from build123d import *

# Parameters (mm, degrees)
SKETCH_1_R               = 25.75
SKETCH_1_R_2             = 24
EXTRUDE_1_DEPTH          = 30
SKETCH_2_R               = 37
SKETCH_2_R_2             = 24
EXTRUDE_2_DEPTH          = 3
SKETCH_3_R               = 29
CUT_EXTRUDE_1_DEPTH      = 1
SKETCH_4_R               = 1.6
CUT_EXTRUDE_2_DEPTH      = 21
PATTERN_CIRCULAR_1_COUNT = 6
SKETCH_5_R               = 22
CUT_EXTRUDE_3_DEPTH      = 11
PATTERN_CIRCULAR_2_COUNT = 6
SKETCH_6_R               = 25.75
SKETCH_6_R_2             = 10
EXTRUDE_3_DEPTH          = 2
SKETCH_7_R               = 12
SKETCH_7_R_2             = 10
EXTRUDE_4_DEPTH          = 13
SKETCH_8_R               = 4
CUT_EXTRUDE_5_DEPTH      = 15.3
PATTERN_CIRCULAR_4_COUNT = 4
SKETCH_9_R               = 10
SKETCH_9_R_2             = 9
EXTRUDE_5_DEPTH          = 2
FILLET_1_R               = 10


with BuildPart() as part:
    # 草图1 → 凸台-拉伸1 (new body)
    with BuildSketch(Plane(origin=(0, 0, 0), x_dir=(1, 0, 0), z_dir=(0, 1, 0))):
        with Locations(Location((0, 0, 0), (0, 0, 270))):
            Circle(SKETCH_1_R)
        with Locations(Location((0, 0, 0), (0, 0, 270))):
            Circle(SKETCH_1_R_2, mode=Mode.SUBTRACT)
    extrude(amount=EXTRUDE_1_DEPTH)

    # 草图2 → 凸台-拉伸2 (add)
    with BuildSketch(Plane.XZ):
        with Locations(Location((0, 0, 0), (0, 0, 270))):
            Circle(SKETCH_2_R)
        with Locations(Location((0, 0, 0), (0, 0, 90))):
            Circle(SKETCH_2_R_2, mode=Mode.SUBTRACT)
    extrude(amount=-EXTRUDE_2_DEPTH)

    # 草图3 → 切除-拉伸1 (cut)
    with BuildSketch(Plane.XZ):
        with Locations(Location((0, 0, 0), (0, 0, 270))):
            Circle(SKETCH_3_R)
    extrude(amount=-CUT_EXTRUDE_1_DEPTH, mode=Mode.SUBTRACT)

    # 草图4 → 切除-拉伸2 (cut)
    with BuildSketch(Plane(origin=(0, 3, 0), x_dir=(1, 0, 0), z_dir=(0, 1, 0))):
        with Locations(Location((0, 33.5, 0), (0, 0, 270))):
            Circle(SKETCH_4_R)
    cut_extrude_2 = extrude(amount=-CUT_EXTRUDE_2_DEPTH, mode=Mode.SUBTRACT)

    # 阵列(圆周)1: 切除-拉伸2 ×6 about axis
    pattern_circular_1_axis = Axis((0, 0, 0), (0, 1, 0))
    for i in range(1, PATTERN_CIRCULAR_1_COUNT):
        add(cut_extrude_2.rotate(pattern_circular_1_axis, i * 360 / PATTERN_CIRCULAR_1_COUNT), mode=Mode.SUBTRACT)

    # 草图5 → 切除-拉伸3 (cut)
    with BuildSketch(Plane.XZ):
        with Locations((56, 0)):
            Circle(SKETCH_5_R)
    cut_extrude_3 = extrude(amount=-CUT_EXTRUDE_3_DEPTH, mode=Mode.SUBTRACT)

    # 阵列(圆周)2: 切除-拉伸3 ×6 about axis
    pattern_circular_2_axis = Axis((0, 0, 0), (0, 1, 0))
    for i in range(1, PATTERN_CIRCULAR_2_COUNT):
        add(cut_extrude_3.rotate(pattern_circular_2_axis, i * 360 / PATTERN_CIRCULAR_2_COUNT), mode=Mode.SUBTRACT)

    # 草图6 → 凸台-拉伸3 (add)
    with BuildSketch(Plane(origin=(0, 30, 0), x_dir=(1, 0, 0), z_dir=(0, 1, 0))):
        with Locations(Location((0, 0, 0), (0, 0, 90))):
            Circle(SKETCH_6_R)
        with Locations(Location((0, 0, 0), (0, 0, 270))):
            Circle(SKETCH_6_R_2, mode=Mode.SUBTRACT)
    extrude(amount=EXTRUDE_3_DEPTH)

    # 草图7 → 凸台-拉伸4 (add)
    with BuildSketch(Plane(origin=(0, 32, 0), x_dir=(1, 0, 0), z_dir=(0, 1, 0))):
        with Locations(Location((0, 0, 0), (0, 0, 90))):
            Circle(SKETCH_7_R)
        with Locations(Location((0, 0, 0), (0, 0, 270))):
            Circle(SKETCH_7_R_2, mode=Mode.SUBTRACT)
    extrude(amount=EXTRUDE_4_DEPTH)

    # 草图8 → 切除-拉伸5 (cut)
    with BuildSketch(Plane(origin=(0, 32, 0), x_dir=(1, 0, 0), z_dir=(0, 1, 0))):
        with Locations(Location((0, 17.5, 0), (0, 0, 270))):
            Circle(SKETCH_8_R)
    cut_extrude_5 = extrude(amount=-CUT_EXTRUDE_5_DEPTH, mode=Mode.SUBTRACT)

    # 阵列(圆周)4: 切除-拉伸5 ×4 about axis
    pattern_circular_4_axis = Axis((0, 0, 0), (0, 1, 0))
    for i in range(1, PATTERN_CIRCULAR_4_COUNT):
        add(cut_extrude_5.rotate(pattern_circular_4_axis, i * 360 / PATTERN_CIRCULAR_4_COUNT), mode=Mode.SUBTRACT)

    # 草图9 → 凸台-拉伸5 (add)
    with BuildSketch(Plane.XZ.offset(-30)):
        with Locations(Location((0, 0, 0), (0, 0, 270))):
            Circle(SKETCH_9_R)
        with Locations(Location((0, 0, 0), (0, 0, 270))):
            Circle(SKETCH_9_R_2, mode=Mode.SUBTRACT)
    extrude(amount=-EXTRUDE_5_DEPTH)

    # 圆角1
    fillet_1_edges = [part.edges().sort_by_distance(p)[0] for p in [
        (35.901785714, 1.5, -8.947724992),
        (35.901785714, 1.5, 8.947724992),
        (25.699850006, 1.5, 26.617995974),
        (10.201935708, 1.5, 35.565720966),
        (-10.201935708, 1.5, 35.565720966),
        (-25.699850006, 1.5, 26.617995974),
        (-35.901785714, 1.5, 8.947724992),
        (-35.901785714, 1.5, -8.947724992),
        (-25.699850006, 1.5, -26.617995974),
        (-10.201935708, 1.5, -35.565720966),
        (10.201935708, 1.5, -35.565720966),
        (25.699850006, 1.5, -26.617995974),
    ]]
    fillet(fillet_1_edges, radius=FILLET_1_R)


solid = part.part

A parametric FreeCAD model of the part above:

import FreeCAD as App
import Part
import Sketcher
from FreeCAD import Vector


def edges_at(feature, points):
    """Names of the edges that pass closest to the given points."""
    edges = feature.Shape.Edges
    near = lambda p: min(range(len(edges)), key=lambda i: edges[i].distToShape(Part.Vertex(*p))[0])
    return sorted({f"Edge{near(p) + 1}" for p in points})

doc = App.newDocument("Part")
body = doc.addObject("PartDesign::Body", "Body")

# Sketch on XZ plane
sketch1 = body.newObject("Sketcher::SketchObject", "Sketch")
sketch1.AttachmentSupport = (doc.getObject("XZ_Plane"), [""])
sketch1.MapMode = "FlatFace"
sketch1.addGeometry(Part.Circle(Vector(0, 0, 0), Vector(0, 0, 1), 26), False)
sketch1.addGeometry(Part.Circle(Vector(0, 0, 0), Vector(0, 0, 1), 24), False)
sketch1.addConstraint(Sketcher.Constraint("Coincident", 0, 3, -1, 1))
sketch1.addConstraint(Sketcher.Constraint("Coincident", 1, 3, -1, 1))
sketch1.addConstraint(Sketcher.Constraint("Diameter", 1, 48.0))
sketch1.addConstraint(Sketcher.Constraint("Diameter", 0, 51.5))
pad1 = body.newObject("PartDesign::Pad", "Pad")
pad1.Profile = sketch1
pad1.Length = 30
pad1.Reversed = True

# Sketch on XZ plane
sketch2 = body.newObject("Sketcher::SketchObject", "Sketch001")
sketch2.AttachmentSupport = (doc.getObject("XZ_Plane"), [""])
sketch2.MapMode = "FlatFace"
sketch2.addGeometry(Part.Circle(Vector(0, 0, 0), Vector(0, 0, 1), 37), False)
sketch2.addGeometry(Part.Circle(Vector(0, 0, 0), Vector(0, 0, 1), 24), False)
sketch2.addConstraint(Sketcher.Constraint("Coincident", 0, 3, -1, 1))
sketch2.addConstraint(Sketcher.Constraint("Coincident", 1, 3, -1, 1))
sketch2.addConstraint(Sketcher.Constraint("Diameter", 0, 74.0))
sketch2.addConstraint(Sketcher.Constraint("Diameter", 1, 48.0))
pad2 = body.newObject("PartDesign::Pad", "Pad001")
pad2.Profile = sketch2
pad2.Length = 3
pad2.Reversed = True

# Sketch on XZ plane
sketch3 = body.newObject("Sketcher::SketchObject", "Sketch002")
sketch3.AttachmentSupport = (doc.getObject("XZ_Plane"), [""])
sketch3.MapMode = "FlatFace"
sketch3.addGeometry(Part.Circle(Vector(0, 0, 0), Vector(0, 0, 1), 29), False)
sketch3.addConstraint(Sketcher.Constraint("Coincident", 0, 3, -1, 1))
sketch3.addConstraint(Sketcher.Constraint("Diameter", 0, 58.0))
pocket1 = body.newObject("PartDesign::Pocket", "Pocket")
pocket1.Profile = sketch3
pocket1.Length = 1

# Sketch on XZ plane
sketch4 = body.newObject("Sketcher::SketchObject", "Sketch003")
sketch4.AttachmentSupport = (doc.getObject("XZ_Plane"), [""])
sketch4.MapMode = "FlatFace"
sketch4.AttachmentOffset = App.Placement(Vector(0, 0, -3), App.Rotation())
sketch4.addGeometry(Part.Circle(Vector(0, -33.5, 0), Vector(0, 0, 1), 1.6), False)
sketch4.addConstraint(Sketcher.Constraint("PointOnObject", 0, 3, -2))
sketch4.addConstraint(Sketcher.Constraint("Diameter", 0, 3.2))
sketch4.addConstraint(Sketcher.Constraint("DistanceY", 0, 3, -1, 1, 33.5))
pocket2 = body.newObject("PartDesign::Pocket", "Pocket001")
pocket2.Profile = sketch4
pocket2.Length = 21
pocket2.Reversed = True
doc.recompute()

polarpattern = body.newObject("PartDesign::PolarPattern", "PolarPattern")
polarpattern.Originals = [pocket2]
polarpattern.Axis = (doc.getObject("Y_Axis"), [""])
polarpattern.Angle = 360
polarpattern.Occurrences = 6
body.Tip = polarpattern

# Sketch on XZ plane
sketch5 = body.newObject("Sketcher::SketchObject", "Sketch004")
sketch5.AttachmentSupport = (doc.getObject("XZ_Plane"), [""])
sketch5.MapMode = "FlatFace"
sketch5.addGeometry(Part.Circle(Vector(56, 0, 0), Vector(0, 0, 1), 22), False)
sketch5.addConstraint(Sketcher.Constraint("PointOnObject", 0, 3, -1))
sketch5.addConstraint(Sketcher.Constraint("Diameter", 0, 44.0))
sketch5.addConstraint(Sketcher.Constraint("DistanceX", -1, 1, 0, 3, 56.0))
pocket3 = body.newObject("PartDesign::Pocket", "Pocket002")
pocket3.Profile = sketch5
pocket3.Length = 11
doc.recompute()

polarpattern2 = body.newObject("PartDesign::PolarPattern", "PolarPattern001")
polarpattern2.Originals = [pocket3]
polarpattern2.Axis = (doc.getObject("Y_Axis"), [""])
polarpattern2.Angle = 360
polarpattern2.Occurrences = 6
body.Tip = polarpattern2

# Sketch on XZ plane
sketch6 = body.newObject("Sketcher::SketchObject", "Sketch005")
sketch6.AttachmentSupport = (doc.getObject("XZ_Plane"), [""])
sketch6.MapMode = "FlatFace"
sketch6.AttachmentOffset = App.Placement(Vector(0, 0, -30), App.Rotation())
sketch6.addGeometry(Part.Circle(Vector(0, 0, 0), Vector(0, 0, 1), 26), False)
sketch6.addGeometry(Part.Circle(Vector(0, 0, 0), Vector(0, 0, 1), 10), False)
sketch6.addConstraint(Sketcher.Constraint("Coincident", 0, 3, -1, 1))
sketch6.addConstraint(Sketcher.Constraint("Coincident", 1, 3, -1, 1))
sketch6.addConstraint(Sketcher.Constraint("Diameter", 1, 20.0))
sketch6.addConstraint(Sketcher.Constraint("Diameter", 0, 51.5))
pad3 = body.newObject("PartDesign::Pad", "Pad002")
pad3.Profile = sketch6
pad3.Length = 2
pad3.Reversed = True

# Sketch on XZ plane
sketch7 = body.newObject("Sketcher::SketchObject", "Sketch006")
sketch7.AttachmentSupport = (doc.getObject("XZ_Plane"), [""])
sketch7.MapMode = "FlatFace"
sketch7.AttachmentOffset = App.Placement(Vector(0, 0, -32), App.Rotation())
sketch7.addGeometry(Part.Circle(Vector(0, 0, 0), Vector(0, 0, 1), 12), False)
sketch7.addGeometry(Part.Circle(Vector(0, 0, 0), Vector(0, 0, 1), 10), False)
sketch7.addConstraint(Sketcher.Constraint("Coincident", 0, 3, -1, 1))
sketch7.addConstraint(Sketcher.Constraint("Coincident", 1, 3, -1, 1))
sketch7.addConstraint(Sketcher.Constraint("Diameter", 0, 24.0))
sketch7.addConstraint(Sketcher.Constraint("Diameter", 1, 20.0))
pad4 = body.newObject("PartDesign::Pad", "Pad003")
pad4.Profile = sketch7
pad4.Length = 13
pad4.Reversed = True

# Sketch on XZ plane
sketch8 = body.newObject("Sketcher::SketchObject", "Sketch007")
sketch8.AttachmentSupport = (doc.getObject("XZ_Plane"), [""])
sketch8.MapMode = "FlatFace"
sketch8.AttachmentOffset = App.Placement(Vector(0, 0, -32), App.Rotation())
sketch8.addGeometry(Part.Circle(Vector(0, -17.5, 0), Vector(0, 0, 1), 4), False)
sketch8.addConstraint(Sketcher.Constraint("PointOnObject", 0, 3, -2))
sketch8.addConstraint(Sketcher.Constraint("Diameter", 0, 8.0))
sketch8.addConstraint(Sketcher.Constraint("DistanceY", 0, 3, -1, 1, 17.5))
pocket4 = body.newObject("PartDesign::Pocket", "Pocket003")
pocket4.Profile = sketch8
pocket4.Length = 15.3
pocket4.Reversed = True
doc.recompute()

polarpattern3 = body.newObject("PartDesign::PolarPattern", "PolarPattern002")
polarpattern3.Originals = [pocket4]
polarpattern3.Axis = (doc.getObject("Y_Axis"), [""])
polarpattern3.Angle = 360
polarpattern3.Occurrences = 4
body.Tip = polarpattern3

# Sketch on XZ plane
sketch9 = body.newObject("Sketcher::SketchObject", "Sketch008")
sketch9.AttachmentSupport = (doc.getObject("XZ_Plane"), [""])
sketch9.MapMode = "FlatFace"
sketch9.AttachmentOffset = App.Placement(Vector(0, 0, -30), App.Rotation())
sketch9.addGeometry(Part.Circle(Vector(0, 0, 0), Vector(0, 0, 1), 10), False)
sketch9.addGeometry(Part.Circle(Vector(0, 0, 0), Vector(0, 0, 1), 9), False)
sketch9.addConstraint(Sketcher.Constraint("Coincident", 0, 3, -1, 1))
sketch9.addConstraint(Sketcher.Constraint("Coincident", 1, 3, -1, 1))
sketch9.addConstraint(Sketcher.Constraint("Diameter", 0, 20.0))
sketch9.addConstraint(Sketcher.Constraint("Diameter", 1, 18.0))
pad5 = body.newObject("PartDesign::Pad", "Pad004")
pad5.Profile = sketch9
pad5.Length = 2
pad5.Reversed = True
doc.recompute()

fillet = body.newObject("PartDesign::Fillet", "Fillet")
fillet.Base = (pad5, edges_at(pad5, [
    (35.902, 1.5, -8.948),
    (35.902, 1.5, 8.948),
    (25.7, 1.5, 26.618),
    (10.202, 1.5, 35.566),
    (-10.202, 1.5, 35.566),
    (-25.7, 1.5, 26.618),
    (-35.902, 1.5, 8.948),
    (-35.902, 1.5, -8.948),
    (-25.7, 1.5, -26.618),
    (-10.202, 1.5, -35.566),
    (10.202, 1.5, -35.566),
    (25.7, 1.5, -26.618),
]))
fillet.Radius = 10

doc.recompute()
